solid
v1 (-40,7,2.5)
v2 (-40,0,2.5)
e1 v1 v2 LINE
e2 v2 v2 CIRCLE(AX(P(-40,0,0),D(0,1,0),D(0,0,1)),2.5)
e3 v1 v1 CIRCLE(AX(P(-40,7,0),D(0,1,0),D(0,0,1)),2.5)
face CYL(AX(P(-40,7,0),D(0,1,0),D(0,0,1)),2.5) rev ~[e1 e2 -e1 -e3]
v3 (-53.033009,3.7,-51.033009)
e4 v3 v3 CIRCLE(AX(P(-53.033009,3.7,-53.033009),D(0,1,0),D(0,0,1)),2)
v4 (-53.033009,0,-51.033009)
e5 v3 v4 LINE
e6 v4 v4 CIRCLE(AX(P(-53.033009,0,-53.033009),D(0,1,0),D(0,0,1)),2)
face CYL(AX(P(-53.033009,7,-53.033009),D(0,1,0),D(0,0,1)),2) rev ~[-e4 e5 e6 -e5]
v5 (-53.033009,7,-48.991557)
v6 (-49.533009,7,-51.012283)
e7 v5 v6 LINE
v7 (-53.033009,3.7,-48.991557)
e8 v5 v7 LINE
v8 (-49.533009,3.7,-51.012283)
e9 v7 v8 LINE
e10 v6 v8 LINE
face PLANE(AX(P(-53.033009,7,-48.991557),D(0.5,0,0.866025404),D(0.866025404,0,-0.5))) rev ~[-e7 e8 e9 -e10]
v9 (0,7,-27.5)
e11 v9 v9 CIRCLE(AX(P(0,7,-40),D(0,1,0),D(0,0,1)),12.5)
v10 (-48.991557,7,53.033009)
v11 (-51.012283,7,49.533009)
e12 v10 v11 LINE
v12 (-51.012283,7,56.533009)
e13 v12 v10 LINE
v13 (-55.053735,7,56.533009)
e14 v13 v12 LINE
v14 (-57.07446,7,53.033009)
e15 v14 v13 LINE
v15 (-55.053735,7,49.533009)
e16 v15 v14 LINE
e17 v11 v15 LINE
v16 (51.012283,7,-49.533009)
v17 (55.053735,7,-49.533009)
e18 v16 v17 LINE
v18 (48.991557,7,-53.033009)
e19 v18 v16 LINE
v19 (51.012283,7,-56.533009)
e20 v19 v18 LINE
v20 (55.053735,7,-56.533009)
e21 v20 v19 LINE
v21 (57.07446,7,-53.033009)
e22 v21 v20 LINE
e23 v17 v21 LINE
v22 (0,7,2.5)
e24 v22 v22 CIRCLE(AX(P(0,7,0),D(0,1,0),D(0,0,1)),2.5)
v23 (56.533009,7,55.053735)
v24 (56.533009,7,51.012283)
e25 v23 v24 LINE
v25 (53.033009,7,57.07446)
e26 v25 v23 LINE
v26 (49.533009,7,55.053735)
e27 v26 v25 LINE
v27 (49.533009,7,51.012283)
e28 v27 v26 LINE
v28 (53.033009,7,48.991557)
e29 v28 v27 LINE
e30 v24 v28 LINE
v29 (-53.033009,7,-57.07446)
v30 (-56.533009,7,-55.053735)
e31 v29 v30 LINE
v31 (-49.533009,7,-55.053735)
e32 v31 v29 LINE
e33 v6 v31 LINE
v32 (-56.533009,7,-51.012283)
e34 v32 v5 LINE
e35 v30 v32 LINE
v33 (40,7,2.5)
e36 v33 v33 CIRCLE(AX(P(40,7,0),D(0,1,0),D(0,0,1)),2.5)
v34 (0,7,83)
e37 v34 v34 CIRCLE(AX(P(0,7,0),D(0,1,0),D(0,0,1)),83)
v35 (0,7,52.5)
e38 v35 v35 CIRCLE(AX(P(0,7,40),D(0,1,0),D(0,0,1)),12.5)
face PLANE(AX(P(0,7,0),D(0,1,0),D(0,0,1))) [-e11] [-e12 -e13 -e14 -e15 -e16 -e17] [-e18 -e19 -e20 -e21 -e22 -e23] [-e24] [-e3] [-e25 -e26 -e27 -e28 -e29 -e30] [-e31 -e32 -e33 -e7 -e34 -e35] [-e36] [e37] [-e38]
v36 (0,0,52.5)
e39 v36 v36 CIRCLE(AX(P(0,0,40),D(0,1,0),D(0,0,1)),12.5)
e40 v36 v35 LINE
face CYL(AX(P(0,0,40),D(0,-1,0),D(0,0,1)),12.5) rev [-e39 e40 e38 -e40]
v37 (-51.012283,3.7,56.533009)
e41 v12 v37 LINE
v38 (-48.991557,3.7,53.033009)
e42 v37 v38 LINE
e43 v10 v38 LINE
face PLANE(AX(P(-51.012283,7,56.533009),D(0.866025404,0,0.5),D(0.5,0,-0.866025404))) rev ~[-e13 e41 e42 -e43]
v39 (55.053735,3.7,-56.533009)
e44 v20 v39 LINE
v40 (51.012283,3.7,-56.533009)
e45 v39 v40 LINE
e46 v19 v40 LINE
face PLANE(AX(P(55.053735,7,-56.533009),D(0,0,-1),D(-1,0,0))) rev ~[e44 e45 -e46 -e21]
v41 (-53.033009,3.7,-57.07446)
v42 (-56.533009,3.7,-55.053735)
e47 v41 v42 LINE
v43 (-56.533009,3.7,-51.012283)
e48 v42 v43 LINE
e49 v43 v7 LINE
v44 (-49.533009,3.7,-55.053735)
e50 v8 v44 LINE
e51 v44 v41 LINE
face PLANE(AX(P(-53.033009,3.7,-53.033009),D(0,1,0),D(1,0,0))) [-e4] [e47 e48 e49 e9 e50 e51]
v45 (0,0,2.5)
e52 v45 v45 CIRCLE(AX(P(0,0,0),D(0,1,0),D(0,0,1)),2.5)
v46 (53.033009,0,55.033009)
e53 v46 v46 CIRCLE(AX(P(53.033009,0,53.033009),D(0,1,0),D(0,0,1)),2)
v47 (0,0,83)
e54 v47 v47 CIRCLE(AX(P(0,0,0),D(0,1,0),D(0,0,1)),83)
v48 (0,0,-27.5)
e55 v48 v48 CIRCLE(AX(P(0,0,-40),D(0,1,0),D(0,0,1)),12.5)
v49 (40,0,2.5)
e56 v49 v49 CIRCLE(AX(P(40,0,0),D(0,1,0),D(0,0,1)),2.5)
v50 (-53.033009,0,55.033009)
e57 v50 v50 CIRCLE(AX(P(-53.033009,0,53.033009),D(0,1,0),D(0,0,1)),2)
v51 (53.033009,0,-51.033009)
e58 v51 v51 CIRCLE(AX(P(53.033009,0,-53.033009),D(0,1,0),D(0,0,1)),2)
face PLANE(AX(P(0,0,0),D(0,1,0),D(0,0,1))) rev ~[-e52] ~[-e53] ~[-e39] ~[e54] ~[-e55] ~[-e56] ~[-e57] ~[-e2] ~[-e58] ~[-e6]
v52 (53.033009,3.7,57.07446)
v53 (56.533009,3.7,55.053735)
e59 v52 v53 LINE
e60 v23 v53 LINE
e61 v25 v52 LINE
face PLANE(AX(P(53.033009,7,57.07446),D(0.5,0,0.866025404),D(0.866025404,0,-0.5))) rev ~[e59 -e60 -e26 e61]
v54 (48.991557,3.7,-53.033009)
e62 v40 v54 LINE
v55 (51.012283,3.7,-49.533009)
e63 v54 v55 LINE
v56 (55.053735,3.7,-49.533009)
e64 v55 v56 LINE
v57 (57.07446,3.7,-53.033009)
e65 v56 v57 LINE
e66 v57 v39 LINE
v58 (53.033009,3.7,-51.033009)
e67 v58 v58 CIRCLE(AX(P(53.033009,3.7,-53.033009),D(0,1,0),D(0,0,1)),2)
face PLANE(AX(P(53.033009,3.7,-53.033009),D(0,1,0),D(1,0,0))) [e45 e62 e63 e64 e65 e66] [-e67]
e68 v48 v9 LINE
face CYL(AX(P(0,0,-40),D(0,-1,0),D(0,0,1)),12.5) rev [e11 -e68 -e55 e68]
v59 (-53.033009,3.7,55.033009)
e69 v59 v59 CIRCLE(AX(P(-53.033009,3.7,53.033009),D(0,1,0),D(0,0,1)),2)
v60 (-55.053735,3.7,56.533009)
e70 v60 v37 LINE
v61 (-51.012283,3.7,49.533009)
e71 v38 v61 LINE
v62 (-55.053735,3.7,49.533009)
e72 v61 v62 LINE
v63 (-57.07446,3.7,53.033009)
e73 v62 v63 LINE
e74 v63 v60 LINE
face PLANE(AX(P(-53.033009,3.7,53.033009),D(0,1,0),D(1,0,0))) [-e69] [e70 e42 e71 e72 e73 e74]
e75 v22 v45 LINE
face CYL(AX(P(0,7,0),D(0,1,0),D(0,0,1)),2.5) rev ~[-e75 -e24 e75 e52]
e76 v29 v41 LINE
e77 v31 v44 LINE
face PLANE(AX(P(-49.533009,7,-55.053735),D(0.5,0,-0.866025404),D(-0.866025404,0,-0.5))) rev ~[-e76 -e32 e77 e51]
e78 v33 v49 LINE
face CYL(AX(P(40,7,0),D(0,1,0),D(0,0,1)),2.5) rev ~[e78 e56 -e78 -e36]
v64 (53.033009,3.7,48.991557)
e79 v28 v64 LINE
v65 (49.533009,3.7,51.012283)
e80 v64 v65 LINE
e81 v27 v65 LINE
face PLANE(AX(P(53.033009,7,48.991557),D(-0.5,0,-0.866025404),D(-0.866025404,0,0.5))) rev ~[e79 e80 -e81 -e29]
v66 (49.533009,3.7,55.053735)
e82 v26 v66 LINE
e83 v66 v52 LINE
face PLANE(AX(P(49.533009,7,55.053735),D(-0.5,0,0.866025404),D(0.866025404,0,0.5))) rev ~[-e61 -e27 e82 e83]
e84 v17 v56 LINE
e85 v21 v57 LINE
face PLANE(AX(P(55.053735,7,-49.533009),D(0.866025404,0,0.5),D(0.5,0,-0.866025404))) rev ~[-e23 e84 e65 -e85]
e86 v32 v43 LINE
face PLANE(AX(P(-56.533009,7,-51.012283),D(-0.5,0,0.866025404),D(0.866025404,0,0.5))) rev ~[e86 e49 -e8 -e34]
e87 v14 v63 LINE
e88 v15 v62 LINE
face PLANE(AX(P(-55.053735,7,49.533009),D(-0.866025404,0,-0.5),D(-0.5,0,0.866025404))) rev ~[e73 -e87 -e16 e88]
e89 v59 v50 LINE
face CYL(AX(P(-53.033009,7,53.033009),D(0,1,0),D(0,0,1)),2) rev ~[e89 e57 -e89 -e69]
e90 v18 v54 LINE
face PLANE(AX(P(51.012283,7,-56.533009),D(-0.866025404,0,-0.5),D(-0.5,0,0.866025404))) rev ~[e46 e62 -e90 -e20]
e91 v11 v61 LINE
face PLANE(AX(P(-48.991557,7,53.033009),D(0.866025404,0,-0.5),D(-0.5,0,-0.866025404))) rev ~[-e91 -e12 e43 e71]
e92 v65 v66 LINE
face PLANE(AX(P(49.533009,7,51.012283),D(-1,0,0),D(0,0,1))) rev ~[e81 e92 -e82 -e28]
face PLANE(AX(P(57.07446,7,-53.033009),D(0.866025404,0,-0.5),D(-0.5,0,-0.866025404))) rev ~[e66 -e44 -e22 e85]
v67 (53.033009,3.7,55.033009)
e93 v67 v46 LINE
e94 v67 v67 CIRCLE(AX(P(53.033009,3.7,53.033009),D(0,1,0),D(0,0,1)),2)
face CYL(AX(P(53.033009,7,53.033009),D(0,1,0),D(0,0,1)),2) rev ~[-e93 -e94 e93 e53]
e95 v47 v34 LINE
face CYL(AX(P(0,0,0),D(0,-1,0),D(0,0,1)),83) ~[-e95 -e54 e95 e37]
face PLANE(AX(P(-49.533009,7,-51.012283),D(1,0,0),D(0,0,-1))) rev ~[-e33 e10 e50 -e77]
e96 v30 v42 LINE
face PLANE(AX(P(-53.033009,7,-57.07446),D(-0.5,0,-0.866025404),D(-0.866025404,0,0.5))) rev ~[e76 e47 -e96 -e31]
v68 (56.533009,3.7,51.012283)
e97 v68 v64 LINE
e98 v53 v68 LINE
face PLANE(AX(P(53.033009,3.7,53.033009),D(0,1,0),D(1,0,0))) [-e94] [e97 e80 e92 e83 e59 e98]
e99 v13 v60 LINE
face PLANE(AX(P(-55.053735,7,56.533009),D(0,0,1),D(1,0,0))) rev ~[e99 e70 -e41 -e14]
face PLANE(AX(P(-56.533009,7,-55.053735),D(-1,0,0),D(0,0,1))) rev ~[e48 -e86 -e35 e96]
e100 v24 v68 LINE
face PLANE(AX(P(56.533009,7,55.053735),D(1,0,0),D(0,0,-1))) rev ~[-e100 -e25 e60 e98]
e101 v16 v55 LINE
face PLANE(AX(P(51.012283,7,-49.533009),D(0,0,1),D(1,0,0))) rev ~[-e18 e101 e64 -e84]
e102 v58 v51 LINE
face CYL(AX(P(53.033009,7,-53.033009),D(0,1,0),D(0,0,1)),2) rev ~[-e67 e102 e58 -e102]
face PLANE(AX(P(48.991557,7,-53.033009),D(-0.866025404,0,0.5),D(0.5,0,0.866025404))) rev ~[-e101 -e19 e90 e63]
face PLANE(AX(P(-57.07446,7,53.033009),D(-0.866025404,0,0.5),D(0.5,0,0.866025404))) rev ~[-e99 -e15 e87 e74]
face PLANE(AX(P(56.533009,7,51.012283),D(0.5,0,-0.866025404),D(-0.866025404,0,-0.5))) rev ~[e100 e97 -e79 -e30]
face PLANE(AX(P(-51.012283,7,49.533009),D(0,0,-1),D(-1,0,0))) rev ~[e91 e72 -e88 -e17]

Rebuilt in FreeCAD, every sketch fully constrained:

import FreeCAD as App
import Part
import Sketcher
from FreeCAD import Vector
Q = App.Units.Quantity

doc = App.newDocument("Part")
params = doc.addObject("Spreadsheet::Sheet", "Params")
for row, (alias, value) in enumerate([
    ("sketch1_diameter", "166 mm"),
    ("sketch1_diameter2", "25 mm"),
    ("pad1_length", "7 mm"),
    ("sketch2_diameter", "4 mm"),
    ("pocket1_length", "133 mm"),
    ("pocket2_length", "3.3 mm"),
    ("sketch4_diameter", "5 mm"),
    ("pocket3_length", "10 mm"),
], start=1):
    params.set(f"A{row}", alias)
    params.set(f"B{row}", "=" + value)
    params.setAlias(f"B{row}", alias)

body = doc.addObject("PartDesign::Body", "Body")

sketch1 = body.newObject("Sketcher::SketchObject", "Sketch")
sketch1.AttachmentSupport = (doc.getObject("XZ_Plane"), [""])
sketch1.MapMode = "FlatFace"
sketch1.addGeometry(Part.Circle(Vector(0, 0, 0), Vector(0, 0, 1), 83), False)
sketch1.addGeometry(Part.Circle(Vector(0, -40, 0), Vector(0, 0, 1), 12), False)
sketch1.addGeometry(Part.Circle(Vector(0, 40, 0), Vector(0, 0, 1), 12), False)
sketch1.addConstraint(Sketcher.Constraint("Coincident", 0, 3, -1, 1))
sketch1.addConstraint(Sketcher.Constraint("Equal", 1, 2))
sketch1.addConstraint(Sketcher.Constraint("Symmetric", 1, 3, 2, 3, -1, 1))
sketch1.addConstraint(Sketcher.Constraint("PointOnObject", 1, 3, -2))
sketch1.addConstraint(Sketcher.Constraint("Diameter", 0, Q("166 mm")))
sketch1.addConstraint(Sketcher.Constraint("Diameter", 1, Q("25 mm")))
sketch1.addConstraint(Sketcher.Constraint("DistanceY", 1, 3, -1, 1, Q("40 mm")))
sketch1.setExpression("Constraints[4]", "Params.sketch1_diameter")
sketch1.setExpression("Constraints[5]", "Params.sketch1_diameter2")
pad1 = body.newObject("PartDesign::Pad", "Pad")
pad1.Profile = sketch1
pad1.setExpression("Length", "Params.pad1_length")
pad1.Reversed = True

sketch2 = body.newObject("Sketcher::SketchObject", "Sketch001")
sketch2.AttachmentSupport = (doc.getObject("XZ_Plane"), [""])
sketch2.MapMode = "FlatFace"
sketch2.AttachmentOffset = App.Placement(Vector(0, 0, -7), App.Rotation())
sketch2.addGeometry(Part.Circle(Vector(-53, -53, 0), Vector(0, 0, 1), 2), False)
sketch2.addGeometry(Part.Circle(Vector(53, -53, 0), Vector(0, 0, 1), 2), False)
sketch2.addGeometry(Part.Circle(Vector(53, 53, 0), Vector(0, 0, 1), 2), False)
sketch2.addGeometry(Part.Circle(Vector(-53, 53, 0), Vector(0, 0, 1), 2), False)
sketch2.addConstraint(Sketcher.Constraint("Equal", 0, 1))
sketch2.addConstraint(Sketcher.Constraint("Equal", 1, 2))
sketch2.addConstraint(Sketcher.Constraint("Equal", 2, 3))
sketch2.addConstraint(Sketcher.Constraint("Symmetric", 0, 3, 2, 3, -1, 1))
sketch2.addConstraint(Sketcher.Constraint("Symmetric", 1, 3, 3, 3, -1, 1))
sketch2.addConstraint(Sketcher.Constraint("Symmetric", 0, 3, 1, 3, -2))
sketch2.addConstraint(Sketcher.Constraint("Diameter", 0, Q("4 mm")))
sketch2.addConstraint(Sketcher.Constraint("DistanceX", 0, 3, -1, 1, Q("53.033009 mm")))
sketch2.addConstraint(Sketcher.Constraint("DistanceY", 0, 3, -1, 1, Q("53.033009 mm")))
sketch2.setExpression("Constraints[6]", "Params.sketch2_diameter")
pocket1 = body.newObject("PartDesign::Pocket", "Pocket")
pocket1.Profile = sketch2
pocket1.setExpression("Length", "Params.pocket1_length")
pocket1.Reversed = True

sketch3 = body.newObject("Sketcher::SketchObject", "Sketch002")
sketch3.AttachmentSupport = (doc.getObject("XZ_Plane"), [""])
sketch3.MapMode = "FlatFace"
sketch3.AttachmentOffset = App.Placement(Vector(0, 0, -7), App.Rotation())
sketch3.addGeometry(Part.LineSegment(Vector(-49.5, -55.1, 0), Vector(-53, -57.1, 0)), False)
sketch3.addGeometry(Part.LineSegment(Vector(-53, -57.1, 0), Vector(-56.5, -55.1, 0)), False)
sketch3.addGeometry(Part.LineSegment(Vector(-56.5, -55.1, 0), Vector(-56.5, -51, 0)), False)
sketch3.addGeometry(Part.LineSegment(Vector(-56.5, -51, 0), Vector(-53, -49, 0)), False)
sketch3.addGeometry(Part.LineSegment(Vector(-53, -49, 0), Vector(-49.5, -51, 0)), False)
sketch3.addGeometry(Part.LineSegment(Vector(-49.5, -51, 0), Vector(-49.5, -55.1, 0)), False)
sketch3.addGeometry(Part.LineSegment(Vector(55.1, -49.5, 0), Vector(57.1, -53, 0)), False)
sketch3.addGeometry(Part.LineSegment(Vector(57.1, -53, 0), Vector(55.1, -56.5, 0)), False)
sketch3.addGeometry(Part.LineSegment(Vector(55.1, -56.5, 0), Vector(51, -56.5, 0)), False)
sketch3.addGeometry(Part.LineSegment(Vector(51, -56.5, 0), Vector(49, -53, 0)), False)
sketch3.addGeometry(Part.LineSegment(Vector(49, -53, 0), Vector(51, -49.5, 0)), False)
sketch3.addGeometry(Part.LineSegment(Vector(51, -49.5, 0), Vector(55.1, -49.5, 0)), False)
sketch3.addGeometry(Part.LineSegment(Vector(49.5, 55.1, 0), Vector(53, 57.1, 0)), False)
sketch3.addGeometry(Part.LineSegment(Vector(53, 57.1, 0), Vector(56.5, 55.1, 0)), False)
sketch3.addGeometry(Part.LineSegment(Vector(56.5, 55.1, 0), Vector(56.5, 51, 0)), False)
sketch3.addGeometry(Part.LineSegment(Vector(56.5, 51, 0), Vector(53, 49, 0)), False)
sketch3.addGeometry(Part.LineSegment(Vector(53, 49, 0), Vector(49.5, 51, 0)), False)
sketch3.addGeometry(Part.LineSegment(Vector(49.5, 51, 0), Vector(49.5, 55.1, 0)), False)
sketch3.addGeometry(Part.LineSegment(Vector(-55.1, 49.5, 0), Vector(-57.1, 53, 0)), False)
sketch3.addGeometry(Part.LineSegment(Vector(-57.1, 53, 0), Vector(-55.1, 56.5, 0)), False)
sketch3.addGeometry(Part.LineSegment(Vector(-55.1, 56.5, 0), Vector(-51, 56.5, 0)), False)
sketch3.addGeometry(Part.LineSegment(Vector(-51, 56.5, 0), Vector(-49, 53, 0)), False)
sketch3.addGeometry(Part.LineSegment(Vector(-49, 53, 0), Vector(-51, 49.5, 0)), False)
sketch3.addGeometry(Part.LineSegment(Vector(-51, 49.5, 0), Vector(-55.1, 49.5, 0)), False)
sketch3.addConstraint(Sketcher.Constraint("Coincident", 0, 2, 1, 1))
sketch3.addConstraint(Sketcher.Constraint("Coincident", 1, 2, 2, 1))
sketch3.addConstraint(Sketcher.Constraint("Coincident", 2, 2, 3, 1))
sketch3.addConstraint(Sketcher.Constraint("Coincident", 3, 2, 4, 1))
sketch3.addConstraint(Sketcher.Constraint("Coincident", 4, 2, 5, 1))
sketch3.addConstraint(Sketcher.Constraint("Coincident", 5, 2, 0, 1))
sketch3.addConstraint(Sketcher.Constraint("Coincident", 6, 2, 7, 1))
sketch3.addConstraint(Sketcher.Constraint("Coincident", 7, 2, 8, 1))
sketch3.addConstraint(Sketcher.Constraint("Coincident", 8, 2, 9, 1))
sketch3.addConstraint(Sketcher.Constraint("Coincident", 9, 2, 10, 1))
sketch3.addConstraint(Sketcher.Constraint("Coincident", 10, 2, 11, 1))
sketch3.addConstraint(Sketcher.Constraint("Coincident", 11, 2, 6, 1))
sketch3.addConstraint(Sketcher.Constraint("Coincident", 12, 2, 13, 1))
sketch3.addConstraint(Sketcher.Constraint("Coincident", 13, 2, 14, 1))
sketch3.addConstraint(Sketcher.Constraint("Coincident", 14, 2, 15, 1))
sketch3.addConstraint(Sketcher.Constraint("Coincident", 15, 2, 16, 1))
sketch3.addConstraint(Sketcher.Constraint("Coincident", 16, 2, 17, 1))
sketch3.addConstraint(Sketcher.Constraint("Coincident", 17, 2, 12, 1))
sketch3.addConstraint(Sketcher.Constraint("Coincident", 18, 2, 19, 1))
sketch3.addConstraint(Sketcher.Constraint("Coincident", 19, 2, 20, 1))
sketch3.addConstraint(Sketcher.Constraint("Coincident", 20, 2, 21, 1))
sketch3.addConstraint(Sketcher.Constraint("Coincident", 21, 2, 22, 1))
sketch3.addConstraint(Sketcher.Constraint("Coincident", 22, 2, 23, 1))
sketch3.addConstraint(Sketcher.Constraint("Coincident", 23, 2, 18, 1))
sketch3.addConstraint(Sketcher.Constraint("Vertical", 2))
sketch3.addConstraint(Sketcher.Constraint("Vertical", 5))
sketch3.addConstraint(Sketcher.Constraint("Horizontal", 8))
sketch3.addConstraint(Sketcher.Constraint("Horizontal", 11))
sketch3.addConstraint(Sketcher.Constraint("Vertical", 14))
sketch3.addConstraint(Sketcher.Constraint("Vertical", 17))
sketch3.addConstraint(Sketcher.Constraint("Horizontal", 20))
sketch3.addConstraint(Sketcher.Constraint("Horizontal", 23))
sketch3.addConstraint(Sketcher.Constraint("Symmetric", 0, 2, 12, 2, -1, 1))
sketch3.addConstraint(Sketcher.Constraint("Symmetric", 1, 2, 13, 2, -1, 1))
sketch3.addConstraint(Sketcher.Constraint("Symmetric", 3, 2, 15, 2, -1, 1))
sketch3.addConstraint(Sketcher.Constraint("Symmetric", 4, 2, 16, 2, -1, 1))
sketch3.addConstraint(Sketcher.Constraint("Symmetric", 6, 2, 18, 2, -1, 1))
sketch3.addConstraint(Sketcher.Constraint("Symmetric", 7, 2, 19, 2, -1, 1))
sketch3.addConstraint(Sketcher.Constraint("Symmetric", 9, 2, 21, 2, -1, 1))
sketch3.addConstraint(Sketcher.Constraint("Symmetric", 10, 2, 22, 2, -1, 1))
sketch3.addConstraint(Sketcher.Constraint("Parallel", 0, 3))
sketch3.addConstraint(Sketcher.Constraint("Parallel", 1, 4))
sketch3.addConstraint(Sketcher.Constraint("Perpendicular", 3, 6))
sketch3.addConstraint(Sketcher.Constraint("Perpendicular", 4, 7))
sketch3.addConstraint(Sketcher.Constraint("Parallel", 6, 9))
sketch3.addConstraint(Sketcher.Constraint("Parallel", 7, 10))
sketch3.addConstraint(Sketcher.Constraint("Perpendicular", 9, 12))
sketch3.addConstraint(Sketcher.Constraint("Parallel", 12, 15))
sketch3.addConstraint(Sketcher.Constraint("Perpendicular", 15, 18))
sketch3.addConstraint(Sketcher.Constraint("Parallel", 18, 21))
sketch3.addConstraint(Sketcher.Constraint("Horizontal", 2, 2, 4, 2))
sketch3.addConstraint(Sketcher.Constraint("Horizontal", 1, 2, 5, 2))
sketch3.addConstraint(Sketcher.Constraint("Horizontal", 6, 2, 9, 2))
sketch3.addConstraint(Sketcher.Constraint("Vertical", 0, 2, 3, 2))
sketch3.addConstraint(Sketcher.Constraint("Vertical", 8, 2, 10, 2))
sketch3.addConstraint(Sketcher.Constraint("Equal", 23, 2))
sketch3.addConstraint(Sketcher.Constraint("Equal", 4, 6))
sketch3.addConstraint(Sketcher.Constraint("Angle", 0, Q("-150 deg")))
sketch3.addConstraint(Sketcher.Constraint("DistanceX", 2, 2, 4, 2, Q("7 mm")))
sketch3.addConstraint(Sketcher.Constraint("DistanceX", 8, 2, 8, 1, Q("4.041452 mm")))
sketch3.addConstraint(Sketcher.Constraint("DistanceX", 0, 2, -1, 1, Q("53.033009 mm")))
sketch3.addConstraint(Sketcher.Constraint("DistanceY", 0, 2, -1, 1, Q("57.07446 mm")))
sketch3.addConstraint(Sketcher.Constraint("DistanceX", -1, 1, 6, 2, Q("57.07446 mm")))
sketch3.addConstraint(Sketcher.Constraint("DistanceY", 6, 2, -1, 1, Q("53.033009 mm")))
pocket2 = body.newObject("PartDesign::Pocket", "Pocket001")
pocket2.Profile = sketch3
pocket2.setExpression("Length", "Params.pocket2_length")
pocket2.Reversed = True

sketch4 = body.newObject("Sketcher::SketchObject", "Sketch003")
sketch4.AttachmentSupport = (doc.getObject("XZ_Plane"), [""])
sketch4.MapMode = "FlatFace"
sketch4.AttachmentOffset = App.Placement(Vector(0, 0, -7), App.Rotation())
sketch4.addGeometry(Part.Circle(Vector(-40, 0, 0), Vector(0, 0, 1), 2.5), False)
sketch4.addGeometry(Part.Circle(Vector(40, 0, 0), Vector(0, 0, 1), 2.5), False)
sketch4.addGeometry(Part.Circle(Vector(0, 0, 0), Vector(0, 0, 1), 2.5), False)
sketch4.addConstraint(Sketcher.Constraint("Coincident", 2, 3, -1, 1))
sketch4.addConstraint(Sketcher.Constraint("Equal", 0, 1))
sketch4.addConstraint(Sketcher.Constraint("Equal", 1, 2))
sketch4.addConstraint(Sketcher.Constraint("Symmetric", 0, 3, 1, 3, -1, 1))
sketch4.addConstraint(Sketcher.Constraint("PointOnObject", 0, 3, -1))
sketch4.addConstraint(Sketcher.Constraint("Diameter", 0, Q("5 mm")))
sketch4.addConstraint(Sketcher.Constraint("DistanceX", 0, 3, -1, 1, Q("40 mm")))
sketch4.setExpression("Constraints[5]", "Params.sketch4_diameter")
pocket3 = body.newObject("PartDesign::Pocket", "Pocket002")
pocket3.Profile = sketch4
pocket3.setExpression("Length", "Params.pocket3_length")
pocket3.Reversed = True

doc.recompute()
